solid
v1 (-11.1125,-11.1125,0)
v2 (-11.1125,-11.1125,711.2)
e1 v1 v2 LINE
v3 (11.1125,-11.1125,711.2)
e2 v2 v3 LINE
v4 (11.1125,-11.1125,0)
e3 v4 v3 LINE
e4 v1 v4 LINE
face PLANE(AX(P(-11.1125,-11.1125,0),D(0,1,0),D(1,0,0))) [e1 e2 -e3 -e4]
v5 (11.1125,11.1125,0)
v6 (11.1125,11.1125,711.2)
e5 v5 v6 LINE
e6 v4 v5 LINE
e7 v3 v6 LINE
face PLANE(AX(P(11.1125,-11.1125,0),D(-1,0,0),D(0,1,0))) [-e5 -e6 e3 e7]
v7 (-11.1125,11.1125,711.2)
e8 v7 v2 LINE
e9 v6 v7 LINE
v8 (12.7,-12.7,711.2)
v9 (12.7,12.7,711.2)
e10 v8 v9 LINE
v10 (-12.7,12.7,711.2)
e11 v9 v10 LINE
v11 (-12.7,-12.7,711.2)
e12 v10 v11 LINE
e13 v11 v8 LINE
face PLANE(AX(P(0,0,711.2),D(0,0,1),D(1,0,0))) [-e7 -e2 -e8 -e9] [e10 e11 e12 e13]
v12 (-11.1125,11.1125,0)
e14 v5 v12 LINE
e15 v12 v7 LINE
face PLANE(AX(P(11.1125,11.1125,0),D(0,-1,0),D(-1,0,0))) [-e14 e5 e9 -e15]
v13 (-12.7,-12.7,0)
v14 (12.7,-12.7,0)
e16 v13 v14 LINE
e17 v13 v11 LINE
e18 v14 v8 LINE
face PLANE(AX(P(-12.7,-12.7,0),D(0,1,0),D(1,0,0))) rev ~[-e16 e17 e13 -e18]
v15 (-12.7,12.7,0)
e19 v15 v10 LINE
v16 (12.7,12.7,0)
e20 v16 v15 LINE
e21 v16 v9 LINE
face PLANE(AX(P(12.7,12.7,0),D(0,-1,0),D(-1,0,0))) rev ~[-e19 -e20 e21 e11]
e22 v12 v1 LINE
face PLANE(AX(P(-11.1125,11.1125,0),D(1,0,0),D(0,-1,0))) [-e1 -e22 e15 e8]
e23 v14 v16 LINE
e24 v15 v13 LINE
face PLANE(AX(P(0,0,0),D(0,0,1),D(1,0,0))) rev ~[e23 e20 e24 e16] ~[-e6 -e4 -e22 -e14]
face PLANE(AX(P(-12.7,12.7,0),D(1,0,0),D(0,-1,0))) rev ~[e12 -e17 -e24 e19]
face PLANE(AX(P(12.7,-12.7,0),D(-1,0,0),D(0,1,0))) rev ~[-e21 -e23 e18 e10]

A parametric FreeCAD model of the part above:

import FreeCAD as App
import Part
import Sketcher
Q = App.Units.Quantity


def add_polygon(sketch, points):
    """Adds a closed chain of lines whose ends are joined by coincident constraints."""
    first, n = sketch.GeometryCount, len(points)
    for a, b in zip(points, points[1:] + points[:1]):
        sketch.addGeometry(Part.LineSegment(App.Vector(*a, 0), App.Vector(*b, 0)), False)
    for i in range(n):
        sketch.addConstraint(Sketcher.Constraint("Coincident", first + i, 2, first + (i + 1) % n, 1))

doc = App.newDocument("Part")
body = doc.addObject("PartDesign::Body", "Body")

# Sketch on XY plane
sketch1 = body.newObject("Sketcher::SketchObject", "Sketch")
sketch1.AttachmentSupport = (doc.getObject("XY_Plane"), [""])
sketch1.MapMode = "FlatFace"
add_polygon(sketch1, [(-13, 13), (-13, -13), (13, -13), (13, 13)])  # lines 0-3
add_polygon(sketch1, [(11, -11), (-11, -11), (-11, 11), (11, 11)])  # lines 4-7
sketch1.addConstraint([
    Sketcher.Constraint("Vertical", 0),
    Sketcher.Constraint("Horizontal", 1),
    Sketcher.Constraint("Vertical", 2),
    Sketcher.Constraint("Horizontal", 3),
    Sketcher.Constraint("Horizontal", 4),
    Sketcher.Constraint("Vertical", 5),
    Sketcher.Constraint("Horizontal", 6),
    Sketcher.Constraint("Vertical", 7),
    Sketcher.Constraint("Symmetric", 0, 2, 2, 2, -1, 1),
    Sketcher.Constraint("Symmetric", 4, 2, 6, 2, -1, 1),
    Sketcher.Constraint("Equal", 3, 0),
    Sketcher.Constraint("Equal", 6, 5),
    Sketcher.Constraint("DistanceX", 1, 1, 1, 2, Q("1 in")),
    Sketcher.Constraint("DistanceX", 4, 2, 4, 1, Q("0.875 in")),
])
pad1 = body.newObject("PartDesign::Pad", "Pad")
pad1.Profile = sketch1
pad1.Length = Q("28 in")

doc.recompute()
